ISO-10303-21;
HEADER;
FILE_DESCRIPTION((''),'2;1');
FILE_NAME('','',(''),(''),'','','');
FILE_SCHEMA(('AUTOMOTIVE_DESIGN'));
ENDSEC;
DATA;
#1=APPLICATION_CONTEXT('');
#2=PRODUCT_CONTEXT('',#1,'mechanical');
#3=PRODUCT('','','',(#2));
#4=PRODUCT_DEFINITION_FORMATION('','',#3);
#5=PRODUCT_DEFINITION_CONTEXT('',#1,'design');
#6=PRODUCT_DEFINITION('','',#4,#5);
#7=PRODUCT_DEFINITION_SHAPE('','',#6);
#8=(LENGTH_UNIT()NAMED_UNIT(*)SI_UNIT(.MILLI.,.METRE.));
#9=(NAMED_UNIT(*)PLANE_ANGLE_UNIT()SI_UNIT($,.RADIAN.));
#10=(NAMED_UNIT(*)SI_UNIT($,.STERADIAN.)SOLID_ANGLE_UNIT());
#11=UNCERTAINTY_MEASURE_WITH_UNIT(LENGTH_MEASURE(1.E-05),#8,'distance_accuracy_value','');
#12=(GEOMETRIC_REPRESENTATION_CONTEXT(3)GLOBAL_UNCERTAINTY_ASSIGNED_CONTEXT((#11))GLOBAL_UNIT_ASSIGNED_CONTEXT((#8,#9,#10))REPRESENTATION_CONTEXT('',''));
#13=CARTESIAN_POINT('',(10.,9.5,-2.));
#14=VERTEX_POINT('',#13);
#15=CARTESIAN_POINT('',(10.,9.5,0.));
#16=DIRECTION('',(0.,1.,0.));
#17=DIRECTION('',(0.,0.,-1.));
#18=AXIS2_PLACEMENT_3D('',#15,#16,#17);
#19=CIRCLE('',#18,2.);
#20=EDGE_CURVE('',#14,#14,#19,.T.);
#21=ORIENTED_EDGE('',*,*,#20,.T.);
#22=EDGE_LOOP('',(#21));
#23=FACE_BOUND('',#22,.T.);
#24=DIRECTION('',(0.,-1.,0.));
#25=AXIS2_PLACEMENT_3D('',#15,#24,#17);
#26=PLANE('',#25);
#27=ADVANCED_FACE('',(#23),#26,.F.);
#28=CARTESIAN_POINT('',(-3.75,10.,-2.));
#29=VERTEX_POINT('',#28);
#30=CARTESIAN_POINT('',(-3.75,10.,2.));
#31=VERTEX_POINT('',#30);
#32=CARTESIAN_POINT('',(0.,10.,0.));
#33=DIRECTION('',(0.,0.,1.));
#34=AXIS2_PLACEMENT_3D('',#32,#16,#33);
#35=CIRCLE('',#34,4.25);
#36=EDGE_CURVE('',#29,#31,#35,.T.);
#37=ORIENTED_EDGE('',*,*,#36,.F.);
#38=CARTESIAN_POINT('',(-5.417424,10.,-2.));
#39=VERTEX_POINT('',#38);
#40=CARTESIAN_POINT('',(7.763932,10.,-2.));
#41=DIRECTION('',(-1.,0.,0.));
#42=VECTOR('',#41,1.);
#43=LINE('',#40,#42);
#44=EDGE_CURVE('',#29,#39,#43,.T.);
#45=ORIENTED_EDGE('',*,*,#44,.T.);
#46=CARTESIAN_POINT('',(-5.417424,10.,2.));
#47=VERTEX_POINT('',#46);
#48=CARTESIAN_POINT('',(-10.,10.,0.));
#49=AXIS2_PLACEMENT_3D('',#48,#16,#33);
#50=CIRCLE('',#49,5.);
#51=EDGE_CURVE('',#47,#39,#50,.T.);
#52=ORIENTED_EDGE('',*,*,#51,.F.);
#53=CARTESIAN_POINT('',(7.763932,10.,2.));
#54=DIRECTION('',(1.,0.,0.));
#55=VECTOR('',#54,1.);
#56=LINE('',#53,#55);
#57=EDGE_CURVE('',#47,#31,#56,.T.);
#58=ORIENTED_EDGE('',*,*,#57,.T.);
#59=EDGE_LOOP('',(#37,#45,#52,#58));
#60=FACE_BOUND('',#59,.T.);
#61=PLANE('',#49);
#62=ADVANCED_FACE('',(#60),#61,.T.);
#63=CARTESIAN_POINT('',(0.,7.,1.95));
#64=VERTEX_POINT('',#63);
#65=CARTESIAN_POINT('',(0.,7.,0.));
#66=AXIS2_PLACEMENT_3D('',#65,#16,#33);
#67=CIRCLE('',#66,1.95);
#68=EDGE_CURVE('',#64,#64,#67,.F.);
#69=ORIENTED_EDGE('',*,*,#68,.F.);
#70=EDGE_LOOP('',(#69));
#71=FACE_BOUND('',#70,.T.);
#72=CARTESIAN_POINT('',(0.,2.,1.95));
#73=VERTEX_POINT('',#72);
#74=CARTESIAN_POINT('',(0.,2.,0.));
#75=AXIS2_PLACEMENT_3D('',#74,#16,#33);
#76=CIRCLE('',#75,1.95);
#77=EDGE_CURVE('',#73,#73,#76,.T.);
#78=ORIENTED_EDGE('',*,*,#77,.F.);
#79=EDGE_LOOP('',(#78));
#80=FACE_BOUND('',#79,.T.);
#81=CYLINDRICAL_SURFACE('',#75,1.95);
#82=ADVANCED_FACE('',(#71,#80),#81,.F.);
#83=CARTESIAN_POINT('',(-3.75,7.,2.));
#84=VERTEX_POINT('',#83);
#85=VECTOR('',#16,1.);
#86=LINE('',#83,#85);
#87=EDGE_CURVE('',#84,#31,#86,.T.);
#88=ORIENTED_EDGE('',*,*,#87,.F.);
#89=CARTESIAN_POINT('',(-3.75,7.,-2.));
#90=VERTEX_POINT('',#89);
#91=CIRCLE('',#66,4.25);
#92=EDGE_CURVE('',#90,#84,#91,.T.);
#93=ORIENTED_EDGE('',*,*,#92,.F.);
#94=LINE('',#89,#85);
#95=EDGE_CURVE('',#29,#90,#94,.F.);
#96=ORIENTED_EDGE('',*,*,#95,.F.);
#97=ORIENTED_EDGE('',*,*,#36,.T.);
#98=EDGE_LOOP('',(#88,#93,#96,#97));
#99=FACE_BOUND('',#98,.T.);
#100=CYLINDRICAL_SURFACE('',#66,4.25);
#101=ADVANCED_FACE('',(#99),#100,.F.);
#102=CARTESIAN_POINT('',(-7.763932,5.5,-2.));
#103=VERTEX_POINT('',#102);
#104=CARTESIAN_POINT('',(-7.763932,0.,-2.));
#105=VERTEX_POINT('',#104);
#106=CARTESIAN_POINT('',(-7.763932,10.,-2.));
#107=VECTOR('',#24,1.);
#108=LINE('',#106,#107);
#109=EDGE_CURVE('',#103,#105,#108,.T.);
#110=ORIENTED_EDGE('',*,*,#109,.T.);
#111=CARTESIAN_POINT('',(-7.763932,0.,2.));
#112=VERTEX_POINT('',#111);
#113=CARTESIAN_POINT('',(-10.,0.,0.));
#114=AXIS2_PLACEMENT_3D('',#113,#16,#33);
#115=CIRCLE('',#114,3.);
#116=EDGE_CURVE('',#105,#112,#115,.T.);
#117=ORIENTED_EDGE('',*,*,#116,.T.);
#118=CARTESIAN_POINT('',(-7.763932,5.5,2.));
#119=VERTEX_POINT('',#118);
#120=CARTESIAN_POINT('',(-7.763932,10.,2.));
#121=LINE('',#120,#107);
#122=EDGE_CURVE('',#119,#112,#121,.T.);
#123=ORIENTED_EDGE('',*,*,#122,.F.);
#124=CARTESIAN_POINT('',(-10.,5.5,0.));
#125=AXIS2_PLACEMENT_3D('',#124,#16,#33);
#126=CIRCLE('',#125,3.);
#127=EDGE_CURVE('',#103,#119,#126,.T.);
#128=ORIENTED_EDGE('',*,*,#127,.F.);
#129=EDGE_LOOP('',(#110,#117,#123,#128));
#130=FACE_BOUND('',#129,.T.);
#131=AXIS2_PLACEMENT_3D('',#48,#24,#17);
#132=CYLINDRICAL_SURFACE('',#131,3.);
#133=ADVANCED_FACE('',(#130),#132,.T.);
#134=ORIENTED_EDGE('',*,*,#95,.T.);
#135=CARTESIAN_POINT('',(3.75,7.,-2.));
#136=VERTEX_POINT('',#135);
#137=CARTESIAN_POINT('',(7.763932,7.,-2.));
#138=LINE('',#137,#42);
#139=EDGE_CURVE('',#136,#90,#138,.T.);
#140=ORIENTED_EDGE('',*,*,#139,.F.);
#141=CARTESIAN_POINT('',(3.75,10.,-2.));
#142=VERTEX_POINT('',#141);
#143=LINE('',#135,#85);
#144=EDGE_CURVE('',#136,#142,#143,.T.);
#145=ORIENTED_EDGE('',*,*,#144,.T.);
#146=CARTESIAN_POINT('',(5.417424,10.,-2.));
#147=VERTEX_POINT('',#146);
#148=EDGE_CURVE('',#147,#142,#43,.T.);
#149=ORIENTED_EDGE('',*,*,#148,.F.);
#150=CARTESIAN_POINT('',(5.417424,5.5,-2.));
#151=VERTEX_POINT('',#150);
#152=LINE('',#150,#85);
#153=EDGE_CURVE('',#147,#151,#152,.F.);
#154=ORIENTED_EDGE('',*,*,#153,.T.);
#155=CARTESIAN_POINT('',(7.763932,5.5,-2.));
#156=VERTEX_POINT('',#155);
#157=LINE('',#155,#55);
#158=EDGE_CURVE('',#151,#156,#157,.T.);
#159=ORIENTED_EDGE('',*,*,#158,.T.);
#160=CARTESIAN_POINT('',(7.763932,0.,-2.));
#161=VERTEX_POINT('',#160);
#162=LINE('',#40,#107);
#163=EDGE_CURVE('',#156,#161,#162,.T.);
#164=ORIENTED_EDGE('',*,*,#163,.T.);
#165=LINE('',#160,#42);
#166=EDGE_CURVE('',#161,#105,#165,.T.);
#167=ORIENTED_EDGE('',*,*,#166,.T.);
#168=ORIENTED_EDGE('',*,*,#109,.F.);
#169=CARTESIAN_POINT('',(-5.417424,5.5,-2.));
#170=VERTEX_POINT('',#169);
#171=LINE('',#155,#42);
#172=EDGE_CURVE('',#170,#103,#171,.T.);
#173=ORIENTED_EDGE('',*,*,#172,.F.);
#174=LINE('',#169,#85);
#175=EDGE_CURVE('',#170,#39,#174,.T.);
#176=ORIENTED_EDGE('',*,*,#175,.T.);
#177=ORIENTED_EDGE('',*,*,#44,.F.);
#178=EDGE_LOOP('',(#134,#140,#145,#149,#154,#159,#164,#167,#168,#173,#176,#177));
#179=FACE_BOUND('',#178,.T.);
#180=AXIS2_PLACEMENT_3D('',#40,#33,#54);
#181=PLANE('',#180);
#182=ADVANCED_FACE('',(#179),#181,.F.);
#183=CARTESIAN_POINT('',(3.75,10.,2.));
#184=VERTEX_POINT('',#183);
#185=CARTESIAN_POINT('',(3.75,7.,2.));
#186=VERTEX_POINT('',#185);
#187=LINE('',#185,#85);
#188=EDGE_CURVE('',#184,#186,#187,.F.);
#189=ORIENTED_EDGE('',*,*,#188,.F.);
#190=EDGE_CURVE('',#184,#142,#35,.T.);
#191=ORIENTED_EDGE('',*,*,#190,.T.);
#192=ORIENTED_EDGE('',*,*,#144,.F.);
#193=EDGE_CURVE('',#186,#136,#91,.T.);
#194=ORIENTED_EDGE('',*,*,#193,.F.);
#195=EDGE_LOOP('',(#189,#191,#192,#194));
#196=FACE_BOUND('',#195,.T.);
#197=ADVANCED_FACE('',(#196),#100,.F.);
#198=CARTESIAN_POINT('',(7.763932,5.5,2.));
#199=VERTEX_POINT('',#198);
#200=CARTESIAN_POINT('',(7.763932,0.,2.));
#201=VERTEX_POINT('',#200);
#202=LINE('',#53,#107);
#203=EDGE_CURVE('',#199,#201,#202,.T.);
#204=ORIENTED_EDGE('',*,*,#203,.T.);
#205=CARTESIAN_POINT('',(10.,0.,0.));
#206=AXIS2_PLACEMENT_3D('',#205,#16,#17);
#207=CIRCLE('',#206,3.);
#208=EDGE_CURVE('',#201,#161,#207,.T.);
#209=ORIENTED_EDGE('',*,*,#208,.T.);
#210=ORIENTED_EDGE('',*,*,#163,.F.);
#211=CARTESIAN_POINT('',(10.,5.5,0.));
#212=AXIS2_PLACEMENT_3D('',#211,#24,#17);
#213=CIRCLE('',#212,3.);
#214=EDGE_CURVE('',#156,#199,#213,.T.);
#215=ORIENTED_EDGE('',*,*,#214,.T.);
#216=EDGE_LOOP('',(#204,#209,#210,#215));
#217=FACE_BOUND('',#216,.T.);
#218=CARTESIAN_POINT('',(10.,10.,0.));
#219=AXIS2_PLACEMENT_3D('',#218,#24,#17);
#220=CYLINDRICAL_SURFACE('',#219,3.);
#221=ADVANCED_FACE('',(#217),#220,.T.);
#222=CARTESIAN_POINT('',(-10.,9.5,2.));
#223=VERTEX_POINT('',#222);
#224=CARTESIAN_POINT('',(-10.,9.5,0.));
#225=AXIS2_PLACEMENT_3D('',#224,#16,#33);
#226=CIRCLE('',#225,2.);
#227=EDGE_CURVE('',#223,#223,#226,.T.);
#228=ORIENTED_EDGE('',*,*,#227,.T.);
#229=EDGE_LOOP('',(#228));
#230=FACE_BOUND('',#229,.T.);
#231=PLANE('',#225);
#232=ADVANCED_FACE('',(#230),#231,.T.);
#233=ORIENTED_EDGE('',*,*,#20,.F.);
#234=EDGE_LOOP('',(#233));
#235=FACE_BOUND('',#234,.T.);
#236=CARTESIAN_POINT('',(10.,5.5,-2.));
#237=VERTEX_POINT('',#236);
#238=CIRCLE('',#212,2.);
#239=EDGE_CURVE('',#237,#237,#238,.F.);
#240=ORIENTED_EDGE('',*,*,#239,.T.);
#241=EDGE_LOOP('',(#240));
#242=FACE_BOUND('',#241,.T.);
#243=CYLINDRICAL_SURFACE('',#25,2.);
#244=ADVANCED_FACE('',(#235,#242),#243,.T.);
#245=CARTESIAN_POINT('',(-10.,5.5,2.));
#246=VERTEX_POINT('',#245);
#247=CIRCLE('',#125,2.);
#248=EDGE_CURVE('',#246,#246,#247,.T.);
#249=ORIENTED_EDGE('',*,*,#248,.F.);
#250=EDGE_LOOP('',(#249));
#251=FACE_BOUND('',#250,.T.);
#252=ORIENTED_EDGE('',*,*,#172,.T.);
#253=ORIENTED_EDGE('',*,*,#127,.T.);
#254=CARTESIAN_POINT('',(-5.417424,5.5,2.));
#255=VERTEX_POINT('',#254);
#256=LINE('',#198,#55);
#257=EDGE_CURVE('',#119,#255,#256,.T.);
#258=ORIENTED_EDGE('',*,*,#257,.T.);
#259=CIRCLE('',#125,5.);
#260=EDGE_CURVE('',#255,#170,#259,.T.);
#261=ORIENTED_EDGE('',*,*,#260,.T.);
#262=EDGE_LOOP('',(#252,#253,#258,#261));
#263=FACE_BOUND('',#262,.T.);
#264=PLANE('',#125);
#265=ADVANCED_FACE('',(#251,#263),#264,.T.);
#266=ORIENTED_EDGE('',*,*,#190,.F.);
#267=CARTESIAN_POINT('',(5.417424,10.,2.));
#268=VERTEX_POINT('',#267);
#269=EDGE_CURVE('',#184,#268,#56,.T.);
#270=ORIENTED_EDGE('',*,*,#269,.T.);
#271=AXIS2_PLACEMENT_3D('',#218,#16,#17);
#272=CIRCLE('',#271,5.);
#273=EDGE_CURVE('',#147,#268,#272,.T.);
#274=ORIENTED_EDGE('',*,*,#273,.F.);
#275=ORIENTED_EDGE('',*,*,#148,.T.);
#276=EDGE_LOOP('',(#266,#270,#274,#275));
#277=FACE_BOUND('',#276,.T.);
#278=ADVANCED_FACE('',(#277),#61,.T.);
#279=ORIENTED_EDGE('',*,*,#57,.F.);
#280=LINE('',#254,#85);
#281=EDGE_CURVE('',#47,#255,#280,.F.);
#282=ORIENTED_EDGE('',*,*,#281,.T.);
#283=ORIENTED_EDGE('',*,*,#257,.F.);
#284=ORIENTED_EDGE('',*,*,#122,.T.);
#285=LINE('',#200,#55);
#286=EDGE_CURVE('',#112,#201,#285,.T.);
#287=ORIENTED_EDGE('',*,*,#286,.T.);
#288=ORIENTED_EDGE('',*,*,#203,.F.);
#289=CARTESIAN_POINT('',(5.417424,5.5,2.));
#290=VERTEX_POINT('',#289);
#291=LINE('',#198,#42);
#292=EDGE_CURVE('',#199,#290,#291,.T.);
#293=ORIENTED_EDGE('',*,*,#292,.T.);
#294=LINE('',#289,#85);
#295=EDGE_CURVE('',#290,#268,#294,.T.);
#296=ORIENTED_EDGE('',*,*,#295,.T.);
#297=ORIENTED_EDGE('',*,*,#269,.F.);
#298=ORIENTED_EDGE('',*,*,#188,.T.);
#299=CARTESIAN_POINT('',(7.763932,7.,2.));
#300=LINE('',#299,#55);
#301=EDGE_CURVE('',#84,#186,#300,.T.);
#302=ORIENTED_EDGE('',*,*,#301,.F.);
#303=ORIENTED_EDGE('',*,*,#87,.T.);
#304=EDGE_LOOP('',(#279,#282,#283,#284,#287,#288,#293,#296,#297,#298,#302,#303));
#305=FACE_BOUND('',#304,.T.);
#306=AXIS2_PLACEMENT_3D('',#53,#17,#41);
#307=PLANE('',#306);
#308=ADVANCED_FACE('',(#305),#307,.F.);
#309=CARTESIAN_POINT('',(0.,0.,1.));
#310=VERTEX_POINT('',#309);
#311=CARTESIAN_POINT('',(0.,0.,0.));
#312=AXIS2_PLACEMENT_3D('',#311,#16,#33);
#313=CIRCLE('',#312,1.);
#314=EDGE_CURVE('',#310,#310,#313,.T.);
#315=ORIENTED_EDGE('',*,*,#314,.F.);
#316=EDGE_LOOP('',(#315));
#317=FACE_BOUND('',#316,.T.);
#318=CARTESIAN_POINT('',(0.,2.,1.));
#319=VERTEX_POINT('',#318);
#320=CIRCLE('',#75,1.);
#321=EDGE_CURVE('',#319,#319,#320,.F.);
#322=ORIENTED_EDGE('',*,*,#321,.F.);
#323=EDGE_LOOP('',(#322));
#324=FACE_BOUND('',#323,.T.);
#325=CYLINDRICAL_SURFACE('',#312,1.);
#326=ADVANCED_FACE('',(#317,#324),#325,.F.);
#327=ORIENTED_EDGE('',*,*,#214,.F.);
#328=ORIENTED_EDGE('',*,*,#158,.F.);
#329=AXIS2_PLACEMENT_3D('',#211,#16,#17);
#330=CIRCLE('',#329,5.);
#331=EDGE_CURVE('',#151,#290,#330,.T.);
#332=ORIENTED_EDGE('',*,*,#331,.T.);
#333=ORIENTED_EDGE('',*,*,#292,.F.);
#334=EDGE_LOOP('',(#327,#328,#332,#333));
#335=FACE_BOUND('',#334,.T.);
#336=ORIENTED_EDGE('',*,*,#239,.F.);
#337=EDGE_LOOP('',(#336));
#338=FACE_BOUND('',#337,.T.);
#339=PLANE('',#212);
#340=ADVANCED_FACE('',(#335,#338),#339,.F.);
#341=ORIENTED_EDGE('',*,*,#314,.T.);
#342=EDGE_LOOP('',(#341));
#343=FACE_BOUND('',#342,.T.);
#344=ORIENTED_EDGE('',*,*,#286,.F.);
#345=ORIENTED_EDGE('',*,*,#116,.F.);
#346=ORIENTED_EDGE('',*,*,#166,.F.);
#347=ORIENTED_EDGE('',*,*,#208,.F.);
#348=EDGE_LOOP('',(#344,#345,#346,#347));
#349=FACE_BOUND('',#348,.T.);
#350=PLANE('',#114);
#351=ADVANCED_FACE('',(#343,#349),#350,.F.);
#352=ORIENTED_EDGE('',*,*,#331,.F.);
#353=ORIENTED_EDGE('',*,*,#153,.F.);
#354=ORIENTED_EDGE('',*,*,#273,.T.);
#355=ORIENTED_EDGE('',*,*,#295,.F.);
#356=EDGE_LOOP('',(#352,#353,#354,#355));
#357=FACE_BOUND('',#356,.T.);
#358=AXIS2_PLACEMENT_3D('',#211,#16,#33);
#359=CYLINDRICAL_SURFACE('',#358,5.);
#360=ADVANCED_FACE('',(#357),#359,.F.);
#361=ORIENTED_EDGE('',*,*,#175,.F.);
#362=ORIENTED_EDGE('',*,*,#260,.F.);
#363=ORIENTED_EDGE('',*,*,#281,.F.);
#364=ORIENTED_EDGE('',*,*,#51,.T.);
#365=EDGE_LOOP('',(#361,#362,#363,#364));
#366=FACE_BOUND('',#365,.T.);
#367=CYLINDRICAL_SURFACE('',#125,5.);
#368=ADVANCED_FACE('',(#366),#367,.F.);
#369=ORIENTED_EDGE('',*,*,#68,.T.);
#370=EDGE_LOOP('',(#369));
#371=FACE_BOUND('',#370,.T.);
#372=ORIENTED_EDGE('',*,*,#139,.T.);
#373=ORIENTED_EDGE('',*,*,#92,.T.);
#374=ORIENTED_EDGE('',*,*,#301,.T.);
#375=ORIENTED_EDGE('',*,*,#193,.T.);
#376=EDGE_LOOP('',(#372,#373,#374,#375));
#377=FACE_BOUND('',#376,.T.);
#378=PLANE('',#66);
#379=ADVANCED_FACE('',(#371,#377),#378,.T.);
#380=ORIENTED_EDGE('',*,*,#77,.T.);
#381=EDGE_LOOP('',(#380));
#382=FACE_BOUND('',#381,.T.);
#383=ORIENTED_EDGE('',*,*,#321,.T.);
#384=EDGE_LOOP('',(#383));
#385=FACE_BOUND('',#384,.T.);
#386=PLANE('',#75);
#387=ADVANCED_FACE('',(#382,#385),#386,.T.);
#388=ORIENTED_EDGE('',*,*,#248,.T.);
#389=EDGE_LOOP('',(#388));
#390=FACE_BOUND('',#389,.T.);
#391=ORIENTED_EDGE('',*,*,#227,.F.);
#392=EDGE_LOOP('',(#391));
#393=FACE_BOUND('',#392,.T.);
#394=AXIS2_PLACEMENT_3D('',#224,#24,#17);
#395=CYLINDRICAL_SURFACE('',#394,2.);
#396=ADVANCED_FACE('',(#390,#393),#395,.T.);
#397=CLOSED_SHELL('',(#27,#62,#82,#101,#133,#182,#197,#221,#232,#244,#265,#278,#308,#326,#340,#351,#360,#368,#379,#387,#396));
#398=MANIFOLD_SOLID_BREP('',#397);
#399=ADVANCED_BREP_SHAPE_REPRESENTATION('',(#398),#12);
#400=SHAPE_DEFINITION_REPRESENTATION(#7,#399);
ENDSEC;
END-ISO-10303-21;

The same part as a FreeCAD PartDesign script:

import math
import FreeCAD as App
import Part
import Sketcher

doc = App.newDocument("Part")
body = doc.addObject("PartDesign::Body", "Body")

# Sketch on XZ plane
sketch1 = body.newObject("Sketcher::SketchObject", "Sketch")
sketch1.AttachmentSupport = (doc.getObject("XZ_Plane"), [""])
sketch1.MapMode = "FlatFace"
sketch1.addGeometry(Part.LineSegment(App.Vector(-7.8, 2, 0), App.Vector(7.8, 2, 0)), False)
sketch1.addGeometry(Part.ArcOfCircle(Part.Circle(App.Vector(10, 0, 0), App.Vector(0, 0, 1), 3), math.radians(-138), math.radians(138)), False)
sketch1.addGeometry(Part.LineSegment(App.Vector(7.8, -2, 0), App.Vector(-7.8, -2, 0)), False)
sketch1.addGeometry(Part.ArcOfCircle(Part.Circle(App.Vector(-10, 0, 0), App.Vector(0, 0, 1), 3), math.radians(42), math.radians(318)), False)
sketch1.addConstraint(Sketcher.Constraint("Coincident", 0, 2, 1, 2))
sketch1.addConstraint(Sketcher.Constraint("Coincident", 1, 1, 2, 1))
sketch1.addConstraint(Sketcher.Constraint("Coincident", 2, 2, 3, 2))
sketch1.addConstraint(Sketcher.Constraint("Coincident", 3, 1, 0, 1))
sketch1.addConstraint(Sketcher.Constraint("Horizontal", 0))
sketch1.addConstraint(Sketcher.Constraint("Horizontal", 2))
sketch1.addConstraint(Sketcher.Constraint("Equal", 1, 3))
sketch1.addConstraint(Sketcher.Constraint("Symmetric", 1, 3, 3, 3, -1, 1))
sketch1.addConstraint(Sketcher.Constraint("Symmetric", 0, 2, 1, 1, -1))
sketch1.addConstraint(Sketcher.Constraint("Radius", 1, 3.0))
sketch1.addConstraint(Sketcher.Constraint("DistanceX", -1, 1, 1, 3, 10.0))
sketch1.addConstraint(Sketcher.Constraint("DistanceY", -1, 1, 0, 2, 2.0))
pad1 = body.newObject("PartDesign::Pad", "Pad")
pad1.Profile = sketch1
pad1.Length = 10
pad1.Reversed = True

# Sketch on XZ plane
sketch2 = body.newObject("Sketcher::SketchObject", "Sketch001")
sketch2.AttachmentSupport = (doc.getObject("XZ_Plane"), [""])
sketch2.MapMode = "FlatFace"
sketch2.AttachmentOffset = App.Placement(App.Vector(0, 0, -10), App.Rotation())
sketch2.addGeometry(Part.Circle(App.Vector(-10, 0, 0), App.Vector(0, 0, 1), 5), False)
sketch2.addGeometry(Part.Circle(App.Vector(10, 0, 0), App.Vector(0, 0, 1), 5), False)
sketch2.addConstraint(Sketcher.Constraint("Equal", 0, 1))
sketch2.addConstraint(Sketcher.Constraint("Symmetric", 0, 3, 1, 3, -1, 1))
sketch2.addConstraint(Sketcher.Constraint("PointOnObject", 0, 3, -1))
sketch2.addConstraint(Sketcher.Constraint("Diameter", 0, 10.0))
sketch2.addConstraint(Sketcher.Constraint("DistanceX", 0, 3, -1, 1, 10.0))
pocket1 = body.newObject("PartDesign::Pocket", "Pocket")
pocket1.Profile = sketch2
pocket1.Length = 4.5
pocket1.Reversed = True

# Sketch on XZ plane
sketch3 = body.newObject("Sketcher::SketchObject", "Sketch002")
sketch3.AttachmentSupport = (doc.getObject("XZ_Plane"), [""])
sketch3.MapMode = "FlatFace"
sketch3.AttachmentOffset = App.Placement(App.Vector(0, 0, -5.5), App.Rotation())
sketch3.addGeometry(Part.Circle(App.Vector(-10, 0, 0), App.Vector(0, 0, 1), 2), False)
sketch3.addGeometry(Part.Circle(App.Vector(10, 0, 0), App.Vector(0, 0, 1), 2), False)
sketch3.addConstraint(Sketcher.Constraint("Equal", 0, 1))
sketch3.addConstraint(Sketcher.Constraint("Symmetric", 0, 3, 1, 3, -1, 1))
sketch3.addConstraint(Sketcher.Constraint("PointOnObject", 0, 3, -1))
sketch3.addConstraint(Sketcher.Constraint("Diameter", 0, 4.0))
sketch3.addConstraint(Sketcher.Constraint("DistanceX", 0, 3, -1, 1, 10.0))
pad2 = body.newObject("PartDesign::Pad", "Pad001")
pad2.Profile = sketch3
pad2.Length = 4
pad2.Reversed = True

# Sketch on XZ plane
sketch4 = body.newObject("Sketcher::SketchObject", "Sketch003")
sketch4.AttachmentSupport = (doc.getObject("XZ_Plane"), [""])
sketch4.MapMode = "FlatFace"
sketch4.AttachmentOffset = App.Placement(App.Vector(0, 0, -10), App.Rotation())
sketch4.addGeometry(Part.Circle(App.Vector(0, 0, 0), App.Vector(0, 0, 1), 1), False)
sketch4.addConstraint(Sketcher.Constraint("Coincident", 0, 3, -1, 1))
sketch4.addConstraint(Sketcher.Constraint("Diameter", 0, 2.0))
pocket2 = body.newObject("PartDesign::Pocket", "Pocket001")
pocket2.Profile = sketch4
pocket2.Type = "ThroughAll"
pocket2.Reversed = True

# Sketch on XZ plane
sketch5 = body.newObject("Sketcher::SketchObject", "Sketch004")
sketch5.AttachmentSupport = (doc.getObject("XZ_Plane"), [""])
sketch5.MapMode = "FlatFace"
sketch5.AttachmentOffset = App.Placement(App.Vector(0, 0, -10), App.Rotation())
sketch5.addGeometry(Part.Circle(App.Vector(0, 0, 0), App.Vector(0, 0, 1), 1.9), False)
sketch5.addConstraint(Sketcher.Constraint("Coincident", 0, 3, -1, 1))
sketch5.addConstraint(Sketcher.Constraint("Diameter", 0, 3.9))
pocket3 = body.newObject("PartDesign::Pocket", "Pocket002")
pocket3.Profile = sketch5
pocket3.Length = 8
pocket3.Reversed = True

# Sketch on XZ plane
sketch6 = body.newObject("Sketcher::SketchObject", "Sketch005")
sketch6.AttachmentSupport = (doc.getObject("XZ_Plane"), [""])
sketch6.MapMode = "FlatFace"
sketch6.AttachmentOffset = App.Placement(App.Vector(0, 0, -10), App.Rotation())
sketch6.addGeometry(Part.Circle(App.Vector(0, 0, 0), App.Vector(0, 0, 1), 4.2), False)
sketch6.addConstraint(Sketcher.Constraint("Coincident", 0, 3, -1, 1))
sketch6.addConstraint(Sketcher.Constraint("Diameter", 0, 8.5))
pocket4 = body.newObject("PartDesign::Pocket", "Pocket003")
pocket4.Profile = sketch6
pocket4.Length = 3
pocket4.Reversed = True

doc.recompute()
